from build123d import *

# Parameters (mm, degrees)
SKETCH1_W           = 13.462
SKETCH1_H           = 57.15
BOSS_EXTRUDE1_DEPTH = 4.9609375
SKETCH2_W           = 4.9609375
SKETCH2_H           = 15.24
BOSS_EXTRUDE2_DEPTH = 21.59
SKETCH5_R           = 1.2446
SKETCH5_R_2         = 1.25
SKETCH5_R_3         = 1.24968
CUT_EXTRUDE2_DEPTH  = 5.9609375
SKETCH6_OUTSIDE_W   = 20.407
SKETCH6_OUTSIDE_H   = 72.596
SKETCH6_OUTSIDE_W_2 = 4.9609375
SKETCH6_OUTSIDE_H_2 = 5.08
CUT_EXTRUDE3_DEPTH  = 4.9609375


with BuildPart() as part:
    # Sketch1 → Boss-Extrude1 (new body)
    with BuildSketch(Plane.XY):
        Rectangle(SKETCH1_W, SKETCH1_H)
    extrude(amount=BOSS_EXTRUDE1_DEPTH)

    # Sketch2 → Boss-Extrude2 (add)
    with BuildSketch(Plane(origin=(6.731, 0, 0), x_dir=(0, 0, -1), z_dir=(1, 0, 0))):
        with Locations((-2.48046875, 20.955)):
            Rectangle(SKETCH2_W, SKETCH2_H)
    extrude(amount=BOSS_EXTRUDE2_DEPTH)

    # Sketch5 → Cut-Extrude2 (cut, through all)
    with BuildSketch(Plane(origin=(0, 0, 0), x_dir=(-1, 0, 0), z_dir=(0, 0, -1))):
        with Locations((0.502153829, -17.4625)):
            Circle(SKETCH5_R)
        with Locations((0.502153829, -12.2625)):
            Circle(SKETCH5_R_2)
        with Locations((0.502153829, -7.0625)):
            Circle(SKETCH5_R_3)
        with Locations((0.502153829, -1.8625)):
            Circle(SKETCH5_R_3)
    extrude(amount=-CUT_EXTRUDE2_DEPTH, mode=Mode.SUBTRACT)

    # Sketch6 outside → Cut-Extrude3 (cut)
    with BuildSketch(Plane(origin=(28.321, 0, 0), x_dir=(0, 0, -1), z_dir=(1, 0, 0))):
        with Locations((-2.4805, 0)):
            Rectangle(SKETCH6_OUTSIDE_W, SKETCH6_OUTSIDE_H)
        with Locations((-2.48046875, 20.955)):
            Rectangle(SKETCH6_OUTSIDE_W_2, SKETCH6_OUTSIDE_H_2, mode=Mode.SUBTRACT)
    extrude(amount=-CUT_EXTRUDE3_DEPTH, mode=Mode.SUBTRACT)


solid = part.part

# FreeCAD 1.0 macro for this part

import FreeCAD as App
import Part
import Sketcher
from FreeCAD import Vector
Q = App.Units.Quantity

doc = App.newDocument("Part")
params = doc.addObject("Spreadsheet::Sheet", "Params")
for row, (alias, value) in enumerate([
    ("sketch1_width", "0.53 in"),
    ("sketch1_height", "2.25 in"),
    ("pad1_length", "4.960938 mm"),
    ("sketch2_width", "0.6 in"),
    ("pad2_length", "0.85 in"),
    ("sketch3_diameter", "0.098 in"),
    ("sketch4_width", "0.2 in"),
    ("pocket2_length", "4.960938 mm"),
], start=1):
    params.set(f"A{row}", alias)
    params.set(f"B{row}", "=" + value)
    params.setAlias(f"B{row}", alias)

body = doc.addObject("PartDesign::Body", "Body")

# Sketch on XY plane
sketch1 = body.newObject("Sketcher::SketchObject", "Sketch")
sketch1.AttachmentSupport = (doc.getObject("XY_Plane"), [""])
sketch1.MapMode = "FlatFace"
sketch1.addGeometry([
    Part.LineSegment(Vector(-7, 29, 0), Vector(-7, -29, 0)),
    Part.LineSegment(Vector(-7, -29, 0), Vector(7, -29, 0)),
    Part.LineSegment(Vector(7, -29, 0), Vector(7, 29, 0)),
    Part.LineSegment(Vector(7, 29, 0), Vector(-7, 29, 0)),
], False)
sketch1.addConstraint([
    Sketcher.Constraint("Coincident", 0, 2, 1, 1),
    Sketcher.Constraint("Coincident", 1, 2, 2, 1),
    Sketcher.Constraint("Coincident", 2, 2, 3, 1),
    Sketcher.Constraint("Coincident", 3, 2, 0, 1),
    Sketcher.Constraint("Vertical", 0),
    Sketcher.Constraint("Horizontal", 1),
    Sketcher.Constraint("Vertical", 2),
    Sketcher.Constraint("Horizontal", 3),
    Sketcher.Constraint("Symmetric", 0, 2, 2, 2, -1, 1),
    Sketcher.Constraint("DistanceX", 1, 1, 1, 2, Q("0.53 in")),
    Sketcher.Constraint("DistanceY", 0, 2, 0, 1, Q("2.25 in")),
])
sketch1.setExpression("Constraints[9]", "Params.sketch1_width")
sketch1.setExpression("Constraints[10]", "Params.sketch1_height")
pad1 = body.newObject("PartDesign::Pad", "Pad")
pad1.Profile = sketch1
pad1.setExpression("Length", "Params.pad1_length")

# Sketch on YZ plane
sketch2 = body.newObject("Sketcher::SketchObject", "Sketch001")
sketch2.AttachmentSupport = (doc.getObject("YZ_Plane"), [""])
sketch2.MapMode = "FlatFace"
sketch2.AttachmentOffset = App.Placement(Vector(0, 0, 0.265 * 25.4), App.Rotation())
sketch2.addGeometry([
    Part.LineSegment(Vector(28.6, 5, 0), Vector(13.3, 5, 0)),
    Part.LineSegment(Vector(13.3, 5, 0), Vector(13.3, 0, 0)),
    Part.LineSegment(Vector(13.3, 0, 0), Vector(28.6, 0, 0)),
    Part.LineSegment(Vector(28.6, 0, 0), Vector(28.6, 5, 0)),
], False)
sketch2.addConstraint([
    Sketcher.Constraint("Coincident", 0, 2, 1, 1),
    Sketcher.Constraint("Coincident", 1, 2, 2, 1),
    Sketcher.Constraint("Coincident", 2, 2, 3, 1),
    Sketcher.Constraint("Coincident", 3, 2, 0, 1),
    Sketcher.Constraint("Horizontal", 0),
    Sketcher.Constraint("Vertical", 1),
    Sketcher.Constraint("Horizontal", 2),
    Sketcher.Constraint("Vertical", 3),
    Sketcher.Constraint("PointOnObject", 1, 2, -1),
    Sketcher.Constraint("DistanceX", 0, 2, 0, 1, Q("0.6 in")),
    Sketcher.Constraint("DistanceX", -1, 1, 0, 2, Q("0.525 in")),
    Sketcher.Constraint("DistanceY", 1, 2, 1, 1, 4.960938),
])
sketch2.setExpression("Constraints[9]", "Params.sketch2_width")
pad2 = body.newObject("PartDesign::Pad", "Pad001")
pad2.Profile = sketch2
pad2.setExpression("Length", "Params.pad2_length")

# Sketch on XY plane
sketch3 = body.newObject("Sketcher::SketchObject", "Sketch002")
sketch3.AttachmentSupport = (doc.getObject("XY_Plane"), [""])
sketch3.MapMode = "FlatFace"
sketch3.addGeometry([
    Part.Circle(Vector(-0.5, -17.5, 0), Vector(0, 0, 1), 1.2),
    Part.Circle(Vector(-0.5, -12.3, 0), Vector(0, 0, 1), 1.2),
    Part.Circle(Vector(-0.5, -7.1, 0), Vector(0, 0, 1), 1.2),
    Part.Circle(Vector(-0.5, -1.9, 0), Vector(0, 0, 1), 1.2),
], False)
sketch3.addConstraint([
    Sketcher.Constraint("Equal", 2, 3),
    Sketcher.Constraint("Vertical", 0, 3, 1, 3),
    Sketcher.Constraint("Vertical", 1, 3, 2, 3),
    Sketcher.Constraint("Vertical", 2, 3, 3, 3),
    Sketcher.Constraint("Diameter", 0, Q("0.098 in")),
    Sketcher.Constraint("Diameter", 2, Q("0.0984 in")),
    Sketcher.Constraint("Diameter", 1, 2.5),
    Sketcher.Constraint("DistanceY", 0, 3, -1, 1, Q("0.6875 in")),
    Sketcher.Constraint("DistanceY", 1, 3, -1, 1, 12.2625),
    Sketcher.Constraint("DistanceY", 2, 3, -1, 1, 7.0625),
    Sketcher.Constraint("DistanceY", 3, 3, -1, 1, 1.8625),
    Sketcher.Constraint("DistanceX", 0, 3, -1, 1, 0.502154),
])
sketch3.setExpression("Constraints[4]", "Params.sketch3_diameter")
pocket1 = body.newObject("PartDesign::Pocket", "Pocket")
pocket1.Profile = sketch3
pocket1.Type = "ThroughAll"
pocket1.Reversed = True

# Sketch on YZ plane
sketch4 = body.newObject("Sketcher::SketchObject", "Sketch003")
sketch4.AttachmentSupport = (doc.getObject("YZ_Plane"), [""])
sketch4.MapMode = "FlatFace"
sketch4.AttachmentOffset = App.Placement(Vector(0, 0, 1.115 * 25.4), App.Rotation())
sketch4.addGeometry([
    Part.LineSegment(Vector(36.3, 12.7, 0), Vector(-36.3, 12.7, 0)),  # 0
    Part.LineSegment(Vector(-36.3, 12.7, 0), Vector(-36.3, -7.7, 0)),  # 1
    Part.LineSegment(Vector(-36.3, -7.7, 0), Vector(36.3, -7.7, 0)),  # 2
    Part.LineSegment(Vector(36.3, -7.7, 0), Vector(36.3, 12.7, 0)),  # 3
    Part.LineSegment(Vector(18.4, 0, 0), Vector(18.4, 5, 0)),  # 4
    Part.LineSegment(Vector(18.4, 5, 0), Vector(23.5, 5, 0)),  # 5
    Part.LineSegment(Vector(23.5, 5, 0), Vector(23.5, 0, 0)),  # 6
    Part.LineSegment(Vector(23.5, 0, 0), Vector(18.4, 0, 0)),  # 7
], False)
sketch4.addConstraint([
    Sketcher.Constraint("Coincident", 0, 2, 1, 1),
    Sketcher.Constraint("Coincident", 1, 2, 2, 1),
    Sketcher.Constraint("Coincident", 2, 2, 3, 1),
    Sketcher.Constraint("Coincident", 3, 2, 0, 1),
    Sketcher.Constraint("Coincident", 4, 2, 5, 1),
    Sketcher.Constraint("Coincident", 5, 2, 6, 1),
    Sketcher.Constraint("Coincident", 6, 2, 7, 1),
    Sketcher.Constraint("Coincident", 7, 2, 4, 1),
    Sketcher.Constraint("Horizontal", 0),
    Sketcher.Constraint("Vertical", 1),
    Sketcher.Constraint("Horizontal", 2),
    Sketcher.Constraint("Vertical", 3),
    Sketcher.Constraint("Vertical", 4),
    Sketcher.Constraint("Horizontal", 5),
    Sketcher.Constraint("Vertical", 6),
    Sketcher.Constraint("Horizontal", 7),
    Sketcher.Constraint("PointOnObject", 6, 2, -1),
    Sketcher.Constraint("DistanceX", 5, 1, 5, 2, Q("0.2 in")),
    Sketcher.Constraint("DistanceX", -1, 1, 4, 2, Q("0.725 in")),
    Sketcher.Constraint("DistanceX", 0, 2, 0, 1, 72.596),
    Sketcher.Constraint("DistanceY", 1, 2, 1, 1, 20.407),
    Sketcher.Constraint("DistanceX", 0, 2, -1, 1, 36.298),
    Sketcher.Constraint("DistanceY", -1, 1, 0, 2, 12.684),
    Sketcher.Constraint("DistanceY", 4, 1, 4, 2, 4.960938),
])
sketch4.setExpression("Constraints[17]", "Params.sketch4_width")
pocket2 = body.newObject("PartDesign::Pocket", "Pocket001")
pocket2.Profile = sketch4
pocket2.setExpression("Length", "Params.pocket2_length")

doc.recompute()
